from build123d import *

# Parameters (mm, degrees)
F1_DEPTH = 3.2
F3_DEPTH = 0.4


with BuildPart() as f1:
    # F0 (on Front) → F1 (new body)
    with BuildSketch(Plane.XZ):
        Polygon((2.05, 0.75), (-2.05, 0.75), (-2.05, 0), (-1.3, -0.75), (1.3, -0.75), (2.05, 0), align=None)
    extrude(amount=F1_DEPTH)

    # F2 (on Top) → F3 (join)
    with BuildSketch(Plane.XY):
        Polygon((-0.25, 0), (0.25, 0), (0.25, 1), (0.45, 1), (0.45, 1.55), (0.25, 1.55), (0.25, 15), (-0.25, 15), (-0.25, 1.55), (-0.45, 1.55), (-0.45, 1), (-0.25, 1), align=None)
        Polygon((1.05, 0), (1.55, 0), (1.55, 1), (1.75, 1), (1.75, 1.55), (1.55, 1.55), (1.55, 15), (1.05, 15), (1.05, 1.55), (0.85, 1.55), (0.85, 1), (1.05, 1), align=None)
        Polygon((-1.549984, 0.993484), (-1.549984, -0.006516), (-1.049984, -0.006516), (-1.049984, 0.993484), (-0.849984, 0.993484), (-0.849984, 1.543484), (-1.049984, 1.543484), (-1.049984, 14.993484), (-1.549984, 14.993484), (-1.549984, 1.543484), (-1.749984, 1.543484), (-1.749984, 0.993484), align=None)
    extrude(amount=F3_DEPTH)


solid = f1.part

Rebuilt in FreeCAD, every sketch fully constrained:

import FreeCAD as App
import Part
import Sketcher
from FreeCAD import Vector
Q = App.Units.Quantity

doc = App.newDocument("Part")
params = doc.addObject("Spreadsheet::Sheet", "Params")
for row, (alias, value) in enumerate([
    ("sketch1_width", "4.1 mm"),
    ("sketch1_width2", "2.6 mm"),
    ("sketch1_height", "0.75 mm"),
    ("pad1_length", "3.2 mm"),
    ("sketch2_height", "1 mm"),
    ("sketch2_width", "0.5 mm"),
    ("sketch2_width2", "0.2 mm"),
    ("sketch2_height2", "0.55 mm"),
    ("pad2_length", "0.4 mm"),
], start=1):
    params.set(f"A{row}", alias)
    params.set(f"B{row}", "=" + value)
    params.setAlias(f"B{row}", alias)

body = doc.addObject("PartDesign::Body", "Body")

sketch1 = doc.addObject("Sketcher::SketchObject", "Sketch")
body.addObject(sketch1)
sketch1.AttachmentSupport = (doc.XZ_Plane, [""])
sketch1.MapMode = "FlatFace"
sketch1.addGeometry(Part.LineSegment(Vector(2.05, 0.75, 0), Vector(-2.05, 0.75, 0)), False)
sketch1.addGeometry(Part.LineSegment(Vector(-2.05, 0.75, 0), Vector(-2.05, 0, 0)), False)
sketch1.addGeometry(Part.LineSegment(Vector(-2.05, 0, 0), Vector(-1.3, -0.75, 0)), False)
sketch1.addGeometry(Part.LineSegment(Vector(-1.3, -0.75, 0), Vector(1.3, -0.75, 0)), False)
sketch1.addGeometry(Part.LineSegment(Vector(1.3, -0.75, 0), Vector(2.05, 0, 0)), False)
sketch1.addGeometry(Part.LineSegment(Vector(2.05, 0, 0), Vector(2.05, 0.75, 0)), False)
sketch1.addConstraint(Sketcher.Constraint("Coincident", 0, 2, 1, 1))
sketch1.addConstraint(Sketcher.Constraint("Coincident", 1, 2, 2, 1))
sketch1.addConstraint(Sketcher.Constraint("Coincident", 2, 2, 3, 1))
sketch1.addConstraint(Sketcher.Constraint("Coincident", 3, 2, 4, 1))
sketch1.addConstraint(Sketcher.Constraint("Coincident", 4, 2, 5, 1))
sketch1.addConstraint(Sketcher.Constraint("Coincident", 5, 2, 0, 1))
sketch1.addConstraint(Sketcher.Constraint("Horizontal", 0))
sketch1.addConstraint(Sketcher.Constraint("Vertical", 1))
sketch1.addConstraint(Sketcher.Constraint("Horizontal", 3))
sketch1.addConstraint(Sketcher.Constraint("Vertical", 5))
sketch1.addConstraint(Sketcher.Constraint("Symmetric", 1, 2, 4, 2, -1, 1))
sketch1.addConstraint(Sketcher.Constraint("PointOnObject", 1, 2, -1))
sketch1.addConstraint(Sketcher.Constraint("Perpendicular", 2, 4))
sketch1.addConstraint(Sketcher.Constraint("Equal", 2, 4))
sketch1.addConstraint(Sketcher.Constraint("DistanceX", 0, 2, 0, 1, Q("4.1 mm")))
sketch1.addConstraint(Sketcher.Constraint("DistanceX", 3, 1, 3, 2, Q("2.6 mm")))
sketch1.addConstraint(Sketcher.Constraint("DistanceY", 1, 2, 1, 1, Q("0.75 mm")))
sketch1.setExpression("Constraints[14]", "Params.sketch1_width")
sketch1.setExpression("Constraints[15]", "Params.sketch1_width2")
sketch1.setExpression("Constraints[16]", "Params.sketch1_height")
pad1 = doc.addObject("PartDesign::Pad", "Pad")
body.addObject(pad1)
pad1.Profile = sketch1
pad1.setExpression("Length", "Params.pad1_length")

sketch2 = doc.addObject("Sketcher::SketchObject", "Sketch001")
body.addObject(sketch2)
sketch2.AttachmentSupport = (doc.XY_Plane, [""])
sketch2.MapMode = "FlatFace"
sketch2.addGeometry(Part.LineSegment(Vector(-0.25, 0, 0), Vector(0.25, 0, 0)), False)
sketch2.addGeometry(Part.LineSegment(Vector(0.25, 0, 0), Vector(0.25, 1, 0)), False)
sketch2.addGeometry(Part.LineSegment(Vector(0.25, 1, 0), Vector(0.45, 1, 0)), False)
sketch2.addGeometry(Part.LineSegment(Vector(0.45, 1, 0), Vector(0.45, 1.55, 0)), False)
sketch2.addGeometry(Part.LineSegment(Vector(0.45, 1.55, 0), Vector(0.25, 1.55, 0)), False)
sketch2.addGeometry(Part.LineSegment(Vector(0.25, 1.55, 0), Vector(0.25, 15, 0)), False)
sketch2.addGeometry(Part.LineSegment(Vector(0.25, 15, 0), Vector(-0.25, 15, 0)), False)
sketch2.addGeometry(Part.LineSegment(Vector(-0.25, 15, 0), Vector(-0.25, 1.55, 0)), False)
sketch2.addGeometry(Part.LineSegment(Vector(-0.25, 1.55, 0), Vector(-0.45, 1.55, 0)), False)
sketch2.addGeometry(Part.LineSegment(Vector(-0.45, 1.55, 0), Vector(-0.45, 1, 0)), False)
sketch2.addGeometry(Part.LineSegment(Vector(-0.45, 1, 0), Vector(-0.25, 1, 0)), False)
sketch2.addGeometry(Part.LineSegment(Vector(-0.25, 1, 0), Vector(-0.25, 0, 0)), False)
sketch2.addGeometry(Part.LineSegment(Vector(1.05, 0, 0), Vector(1.55, 0, 0)), False)
sketch2.addGeometry(Part.LineSegment(Vector(1.55, 0, 0), Vector(1.55, 1, 0)), False)
sketch2.addGeometry(Part.LineSegment(Vector(1.55, 1, 0), Vector(1.75, 1, 0)), False)
sketch2.addGeometry(Part.LineSegment(Vector(1.75, 1, 0), Vector(1.75, 1.55, 0)), False)
sketch2.addGeometry(Part.LineSegment(Vector(1.75, 1.55, 0), Vector(1.55, 1.55, 0)), False)
sketch2.addGeometry(Part.LineSegment(Vector(1.55, 1.55, 0), Vector(1.55, 15, 0)), False)
sketch2.addGeometry(Part.LineSegment(Vector(1.55, 15, 0), Vector(1.05, 15, 0)), False)
sketch2.addGeometry(Part.LineSegment(Vector(1.05, 15, 0), Vector(1.05, 1.55, 0)), False)
sketch2.addGeometry(Part.LineSegment(Vector(1.05, 1.55, 0), Vector(0.85, 1.55, 0)), False)
sketch2.addGeometry(Part.LineSegment(Vector(0.85, 1.55, 0), Vector(0.85, 1, 0)), False)
sketch2.addGeometry(Part.LineSegment(Vector(0.85, 1, 0), Vector(1.05, 1, 0)), False)
sketch2.addGeometry(Part.LineSegment(Vector(1.05, 1, 0), Vector(1.05, 0, 0)), False)
sketch2.addGeometry(Part.LineSegment(Vector(-1.549984, 0.993484, 0), Vector(-1.549984, -0.006516, 0)), False)
sketch2.addGeometry(Part.LineSegment(Vector(-1.549984, -0.006516, 0), Vector(-1.049984, -0.006516, 0)), False)
sketch2.addGeometry(Part.LineSegment(Vector(-1.049984, -0.006516, 0), Vector(-1.049984, 0.993484, 0)), False)
sketch2.addGeometry(Part.LineSegment(Vector(-1.049984, 0.993484, 0), Vector(-0.849984, 0.993484, 0)), False)
sketch2.addGeometry(Part.LineSegment(Vector(-0.849984, 0.993484, 0), Vector(-0.849984, 1.543484, 0)), False)
sketch2.addGeometry(Part.LineSegment(Vector(-0.849984, 1.543484, 0), Vector(-1.049984, 1.543484, 0)), False)
sketch2.addGeometry(Part.LineSegment(Vector(-1.049984, 1.543484, 0), Vector(-1.049984, 14.993484, 0)), False)
sketch2.addGeometry(Part.LineSegment(Vector(-1.049984, 14.993484, 0), Vector(-1.549984, 14.993484, 0)), False)
sketch2.addGeometry(Part.LineSegment(Vector(-1.549984, 14.993484, 0), Vector(-1.549984, 1.543484, 0)), False)
sketch2.addGeometry(Part.LineSegment(Vector(-1.549984, 1.543484, 0), Vector(-1.749984, 1.543484, 0)), False)
sketch2.addGeometry(Part.LineSegment(Vector(-1.749984, 1.543484, 0), Vector(-1.749984, 0.993484, 0)), False)
sketch2.addGeometry(Part.LineSegment(Vector(-1.749984, 0.993484, 0), Vector(-1.549984, 0.993484, 0)), False)
sketch2.addConstraint(Sketcher.Constraint("Coincident", 0, 2, 1, 1))
sketch2.addConstraint(Sketcher.Constraint("Coincident", 1, 2, 2, 1))
sketch2.addConstraint(Sketcher.Constraint("Coincident", 2, 2, 3, 1))
sketch2.addConstraint(Sketcher.Constraint("Coincident", 3, 2, 4, 1))
sketch2.addConstraint(Sketcher.Constraint("Coincident", 4, 2, 5, 1))
sketch2.addConstraint(Sketcher.Constraint("Coincident", 5, 2, 6, 1))
sketch2.addConstraint(Sketcher.Constraint("Coincident", 6, 2, 7, 1))
sketch2.addConstraint(Sketcher.Constraint("Coincident", 7, 2, 8, 1))
sketch2.addConstraint(Sketcher.Constraint("Coincident", 8, 2, 9, 1))
sketch2.addConstraint(Sketcher.Constraint("Coincident", 9, 2, 10, 1))
sketch2.addConstraint(Sketcher.Constraint("Coincident", 10, 2, 11, 1))
sketch2.addConstraint(Sketcher.Constraint("Coincident", 11, 2, 0, 1))
sketch2.addConstraint(Sketcher.Constraint("Coincident", 12, 2, 13, 1))
sketch2.addConstraint(Sketcher.Constraint("Coincident", 13, 2, 14, 1))
sketch2.addConstraint(Sketcher.Constraint("Coincident", 14, 2, 15, 1))
sketch2.addConstraint(Sketcher.Constraint("Coincident", 15, 2, 16, 1))
sketch2.addConstraint(Sketcher.Constraint("Coincident", 16, 2, 17, 1))
sketch2.addConstraint(Sketcher.Constraint("Coincident", 17, 2, 18, 1))
sketch2.addConstraint(Sketcher.Constraint("Coincident", 18, 2, 19, 1))
sketch2.addConstraint(Sketcher.Constraint("Coincident", 19, 2, 20, 1))
sketch2.addConstraint(Sketcher.Constraint("Coincident", 20, 2, 21, 1))
sketch2.addConstraint(Sketcher.Constraint("Coincident", 21, 2, 22, 1))
sketch2.addConstraint(Sketcher.Constraint("Coincident", 22, 2, 23, 1))
sketch2.addConstraint(Sketcher.Constraint("Coincident", 23, 2, 12, 1))
sketch2.addConstraint(Sketcher.Constraint("Coincident", 24, 2, 25, 1))
sketch2.addConstraint(Sketcher.Constraint("Coincident", 25, 2, 26, 1))
sketch2.addConstraint(Sketcher.Constraint("Coincident", 26, 2, 27, 1))
sketch2.addConstraint(Sketcher.Constraint("Coincident", 27, 2, 28, 1))
sketch2.addConstraint(Sketcher.Constraint("Coincident", 28, 2, 29, 1))
sketch2.addConstraint(Sketcher.Constraint("Coincident", 29, 2, 30, 1))
sketch2.addConstraint(Sketcher.Constraint("Coincident", 30, 2, 31, 1))
sketch2.addConstraint(Sketcher.Constraint("Coincident", 31, 2, 32, 1))
sketch2.addConstraint(Sketcher.Constraint("Coincident", 32, 2, 33, 1))
sketch2.addConstraint(Sketcher.Constraint("Coincident", 33, 2, 34, 1))
sketch2.addConstraint(Sketcher.Constraint("Coincident", 34, 2, 35, 1))
sketch2.addConstraint(Sketcher.Constraint("Coincident", 35, 2, 24, 1))
sketch2.addConstraint(Sketcher.Constraint("Horizontal", 0))
sketch2.addConstraint(Sketcher.Constraint("Vertical", 1))
sketch2.addConstraint(Sketcher.Constraint("Horizontal", 2))
sketch2.addConstraint(Sketcher.Constraint("Vertical", 3))
sketch2.addConstraint(Sketcher.Constraint("Horizontal", 4))
sketch2.addConstraint(Sketcher.Constraint("Vertical", 5))
sketch2.addConstraint(Sketcher.Constraint("Horizontal", 6))
sketch2.addConstraint(Sketcher.Constraint("Vertical", 7))
sketch2.addConstraint(Sketcher.Constraint("Horizontal", 8))
sketch2.addConstraint(Sketcher.Constraint("Vertical", 9))
sketch2.addConstraint(Sketcher.Constraint("Horizontal", 10))
sketch2.addConstraint(Sketcher.Constraint("Vertical", 11))
sketch2.addConstraint(Sketcher.Constraint("Horizontal", 12))
sketch2.addConstraint(Sketcher.Constraint("Vertical", 13))
sketch2.addConstraint(Sketcher.Constraint("Horizontal", 14))
sketch2.addConstraint(Sketcher.Constraint("Vertical", 15))
sketch2.addConstraint(Sketcher.Constraint("Horizontal", 16))
sketch2.addConstraint(Sketcher.Constraint("Vertical", 17))
sketch2.addConstraint(Sketcher.Constraint("Horizontal", 18))
sketch2.addConstraint(Sketcher.Constraint("Vertical", 19))
sketch2.addConstraint(Sketcher.Constraint("Horizontal", 20))
sketch2.addConstraint(Sketcher.Constraint("Vertical", 21))
sketch2.addConstraint(Sketcher.Constraint("Horizontal", 22))
sketch2.addConstraint(Sketcher.Constraint("Vertical", 23))
sketch2.addConstraint(Sketcher.Constraint("Vertical", 24))
sketch2.addConstraint(Sketcher.Constraint("Horizontal", 25))
sketch2.addConstraint(Sketcher.Constraint("Vertical", 26))
sketch2.addConstraint(Sketcher.Constraint("Horizontal", 27))
sketch2.addConstraint(Sketcher.Constraint("Vertical", 28))
sketch2.addConstraint(Sketcher.Constraint("Horizontal", 29))
sketch2.addConstraint(Sketcher.Constraint("Vertical", 30))
sketch2.addConstraint(Sketcher.Constraint("Horizontal", 31))
sketch2.addConstraint(Sketcher.Constraint("Vertical", 32))
sketch2.addConstraint(Sketcher.Constraint("Horizontal", 33))
sketch2.addConstraint(Sketcher.Constraint("Vertical", 34))
sketch2.addConstraint(Sketcher.Constraint("Horizontal", 35))
sketch2.addConstraint(Sketcher.Constraint("Symmetric", 0, 2, 11, 2, -1, 1))
sketch2.addConstraint(Sketcher.Constraint("Symmetric", 4, 2, 7, 2, -2))
sketch2.addConstraint(Sketcher.Constraint("Symmetric", 2, 2, 9, 2, -2))
sketch2.addConstraint(Sketcher.Constraint("PointOnObject", 12, 2, -1))
sketch2.addConstraint(Sketcher.Constraint("Horizontal", 10, 2, 13, 2))
sketch2.addConstraint(Sketcher.Constraint("Horizontal", 8, 2, 15, 2))
sketch2.addConstraint(Sketcher.Constraint("Horizontal", 6, 2, 17, 2))
sketch2.addConstraint(Sketcher.Constraint("Horizontal", 16, 2, 19, 2))
sketch2.addConstraint(Sketcher.Constraint("Horizontal", 14, 2, 21, 2))
sketch2.addConstraint(Sketcher.Constraint("Horizontal", 29, 2, 32, 2))
sketch2.addConstraint(Sketcher.Constraint("Horizontal", 27, 2, 34, 2))
sketch2.addConstraint(Sketcher.Constraint("Vertical", 1, 2, 4, 2))
sketch2.addConstraint(Sketcher.Constraint("Vertical", 13, 2, 16, 2))
sketch2.addConstraint(Sketcher.Constraint("Vertical", 19, 2, 22, 2))
sketch2.addConstraint(Sketcher.Constraint("Vertical", 26, 2, 29, 2))
sketch2.addConstraint(Sketcher.Constraint("Vertical", 24, 2, 31, 2))
sketch2.addConstraint(Sketcher.Constraint("Equal", 6, 12))
sketch2.addConstraint(Sketcher.Constraint("Equal", 10, 14))
sketch2.addConstraint(Sketcher.Constraint("Equal", 16, 20))
sketch2.addConstraint(Sketcher.Constraint("Equal", 18, 25))
sketch2.addConstraint(Sketcher.Constraint("Equal", 22, 27))
sketch2.addConstraint(Sketcher.Constraint("Equal", 29, 33))
sketch2.addConstraint(Sketcher.Constraint("Equal", 23, 24))
sketch2.addConstraint(Sketcher.Constraint("Equal", 21, 28))
sketch2.addConstraint(Sketcher.Constraint("Equal", 19, 30))
sketch2.addConstraint(Sketcher.Constraint("DistanceY", 1, 1, 1, 2, Q("1 mm")))
sketch2.addConstraint(Sketcher.Constraint("DistanceX", 0, 1, 0, 2, Q("0.5 mm")))
sketch2.addConstraint(Sketcher.Constraint("DistanceX", 2, 1, 2, 2, Q("0.2 mm")))
sketch2.addConstraint(Sketcher.Constraint("DistanceY", -1, 1, 5, 2, Q("15 mm")))
sketch2.addConstraint(Sketcher.Constraint("DistanceY", 3, 1, 3, 2, Q("0.55 mm")))
sketch2.addConstraint(Sketcher.Constraint("DistanceX", 0, 2, 12, 2, Q("1.3 mm")))
sketch2.addConstraint(Sketcher.Constraint("DistanceX", 24, 2, -1, 1, Q("1.549984 mm")))
sketch2.addConstraint(Sketcher.Constraint("DistanceY", 24, 2, -1, 1, Q("0.006516 mm")))
sketch2.setExpression("Constraints[97]", "Params.sketch2_height")
sketch2.setExpression("Constraints[98]", "Params.sketch2_width")
sketch2.setExpression("Constraints[99]", "Params.sketch2_width2")
sketch2.setExpression("Constraints[101]", "Params.sketch2_height2")
pad2 = doc.addObject("PartDesign::Pad", "Pad001")
body.addObject(pad2)
pad2.Profile = sketch2
pad2.setExpression("Length", "Params.pad2_length")

doc.recompute()
